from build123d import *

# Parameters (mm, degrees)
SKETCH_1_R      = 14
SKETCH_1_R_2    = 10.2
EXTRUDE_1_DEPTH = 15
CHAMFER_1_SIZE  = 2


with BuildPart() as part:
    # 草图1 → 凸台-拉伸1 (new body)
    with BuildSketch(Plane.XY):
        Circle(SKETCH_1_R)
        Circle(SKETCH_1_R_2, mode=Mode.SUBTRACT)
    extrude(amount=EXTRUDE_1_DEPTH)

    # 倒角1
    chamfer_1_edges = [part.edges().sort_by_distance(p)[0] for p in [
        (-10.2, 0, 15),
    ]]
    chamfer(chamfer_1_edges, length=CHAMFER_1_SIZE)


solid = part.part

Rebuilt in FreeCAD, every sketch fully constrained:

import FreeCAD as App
import Part
import Sketcher

V = App.Vector
Q = App.Units.Quantity


def edges_at(feature, points):
    """Names of the edges that pass closest to the given points."""
    edges = feature.Shape.Edges
    near = lambda p: min(range(len(edges)), key=lambda i: edges[i].distToShape(Part.Vertex(*p))[0])
    return sorted({f"Edge{near(p) + 1}" for p in points})

doc = App.newDocument("Part")
body = doc.addObject("PartDesign::Body", "Body")

# Sketch on XY plane
sketch1 = body.newObject("Sketcher::SketchObject", "Sketch")
sketch1.AttachmentSupport = (doc.getObject("XY_Plane"), [""])
sketch1.MapMode = "FlatFace"
sketch1.addGeometry(Part.Circle(V(0, 0, 0), V(0, 0, 1), 14), False)
sketch1.addGeometry(Part.Circle(V(0, 0, 0), V(0, 0, 1), 10.2), False)
sketch1.addConstraint(Sketcher.Constraint("Coincident", 0, 3, -1, 1))
sketch1.addConstraint(Sketcher.Constraint("Coincident", 1, 3, -1, 1))
sketch1.addConstraint(Sketcher.Constraint("Diameter", 0, Q("28 mm")))
sketch1.addConstraint(Sketcher.Constraint("Diameter", 1, Q("20.4 mm")))
pad1 = body.newObject("PartDesign::Pad", "Pad")
pad1.Profile = sketch1
pad1.Length = 15
doc.recompute()

chamfer = body.newObject("PartDesign::Chamfer", "Chamfer")
chamfer.Base = (pad1, edges_at(pad1, [(-10.2, 0, 15)]))
chamfer.Size = 2

doc.recompute()
